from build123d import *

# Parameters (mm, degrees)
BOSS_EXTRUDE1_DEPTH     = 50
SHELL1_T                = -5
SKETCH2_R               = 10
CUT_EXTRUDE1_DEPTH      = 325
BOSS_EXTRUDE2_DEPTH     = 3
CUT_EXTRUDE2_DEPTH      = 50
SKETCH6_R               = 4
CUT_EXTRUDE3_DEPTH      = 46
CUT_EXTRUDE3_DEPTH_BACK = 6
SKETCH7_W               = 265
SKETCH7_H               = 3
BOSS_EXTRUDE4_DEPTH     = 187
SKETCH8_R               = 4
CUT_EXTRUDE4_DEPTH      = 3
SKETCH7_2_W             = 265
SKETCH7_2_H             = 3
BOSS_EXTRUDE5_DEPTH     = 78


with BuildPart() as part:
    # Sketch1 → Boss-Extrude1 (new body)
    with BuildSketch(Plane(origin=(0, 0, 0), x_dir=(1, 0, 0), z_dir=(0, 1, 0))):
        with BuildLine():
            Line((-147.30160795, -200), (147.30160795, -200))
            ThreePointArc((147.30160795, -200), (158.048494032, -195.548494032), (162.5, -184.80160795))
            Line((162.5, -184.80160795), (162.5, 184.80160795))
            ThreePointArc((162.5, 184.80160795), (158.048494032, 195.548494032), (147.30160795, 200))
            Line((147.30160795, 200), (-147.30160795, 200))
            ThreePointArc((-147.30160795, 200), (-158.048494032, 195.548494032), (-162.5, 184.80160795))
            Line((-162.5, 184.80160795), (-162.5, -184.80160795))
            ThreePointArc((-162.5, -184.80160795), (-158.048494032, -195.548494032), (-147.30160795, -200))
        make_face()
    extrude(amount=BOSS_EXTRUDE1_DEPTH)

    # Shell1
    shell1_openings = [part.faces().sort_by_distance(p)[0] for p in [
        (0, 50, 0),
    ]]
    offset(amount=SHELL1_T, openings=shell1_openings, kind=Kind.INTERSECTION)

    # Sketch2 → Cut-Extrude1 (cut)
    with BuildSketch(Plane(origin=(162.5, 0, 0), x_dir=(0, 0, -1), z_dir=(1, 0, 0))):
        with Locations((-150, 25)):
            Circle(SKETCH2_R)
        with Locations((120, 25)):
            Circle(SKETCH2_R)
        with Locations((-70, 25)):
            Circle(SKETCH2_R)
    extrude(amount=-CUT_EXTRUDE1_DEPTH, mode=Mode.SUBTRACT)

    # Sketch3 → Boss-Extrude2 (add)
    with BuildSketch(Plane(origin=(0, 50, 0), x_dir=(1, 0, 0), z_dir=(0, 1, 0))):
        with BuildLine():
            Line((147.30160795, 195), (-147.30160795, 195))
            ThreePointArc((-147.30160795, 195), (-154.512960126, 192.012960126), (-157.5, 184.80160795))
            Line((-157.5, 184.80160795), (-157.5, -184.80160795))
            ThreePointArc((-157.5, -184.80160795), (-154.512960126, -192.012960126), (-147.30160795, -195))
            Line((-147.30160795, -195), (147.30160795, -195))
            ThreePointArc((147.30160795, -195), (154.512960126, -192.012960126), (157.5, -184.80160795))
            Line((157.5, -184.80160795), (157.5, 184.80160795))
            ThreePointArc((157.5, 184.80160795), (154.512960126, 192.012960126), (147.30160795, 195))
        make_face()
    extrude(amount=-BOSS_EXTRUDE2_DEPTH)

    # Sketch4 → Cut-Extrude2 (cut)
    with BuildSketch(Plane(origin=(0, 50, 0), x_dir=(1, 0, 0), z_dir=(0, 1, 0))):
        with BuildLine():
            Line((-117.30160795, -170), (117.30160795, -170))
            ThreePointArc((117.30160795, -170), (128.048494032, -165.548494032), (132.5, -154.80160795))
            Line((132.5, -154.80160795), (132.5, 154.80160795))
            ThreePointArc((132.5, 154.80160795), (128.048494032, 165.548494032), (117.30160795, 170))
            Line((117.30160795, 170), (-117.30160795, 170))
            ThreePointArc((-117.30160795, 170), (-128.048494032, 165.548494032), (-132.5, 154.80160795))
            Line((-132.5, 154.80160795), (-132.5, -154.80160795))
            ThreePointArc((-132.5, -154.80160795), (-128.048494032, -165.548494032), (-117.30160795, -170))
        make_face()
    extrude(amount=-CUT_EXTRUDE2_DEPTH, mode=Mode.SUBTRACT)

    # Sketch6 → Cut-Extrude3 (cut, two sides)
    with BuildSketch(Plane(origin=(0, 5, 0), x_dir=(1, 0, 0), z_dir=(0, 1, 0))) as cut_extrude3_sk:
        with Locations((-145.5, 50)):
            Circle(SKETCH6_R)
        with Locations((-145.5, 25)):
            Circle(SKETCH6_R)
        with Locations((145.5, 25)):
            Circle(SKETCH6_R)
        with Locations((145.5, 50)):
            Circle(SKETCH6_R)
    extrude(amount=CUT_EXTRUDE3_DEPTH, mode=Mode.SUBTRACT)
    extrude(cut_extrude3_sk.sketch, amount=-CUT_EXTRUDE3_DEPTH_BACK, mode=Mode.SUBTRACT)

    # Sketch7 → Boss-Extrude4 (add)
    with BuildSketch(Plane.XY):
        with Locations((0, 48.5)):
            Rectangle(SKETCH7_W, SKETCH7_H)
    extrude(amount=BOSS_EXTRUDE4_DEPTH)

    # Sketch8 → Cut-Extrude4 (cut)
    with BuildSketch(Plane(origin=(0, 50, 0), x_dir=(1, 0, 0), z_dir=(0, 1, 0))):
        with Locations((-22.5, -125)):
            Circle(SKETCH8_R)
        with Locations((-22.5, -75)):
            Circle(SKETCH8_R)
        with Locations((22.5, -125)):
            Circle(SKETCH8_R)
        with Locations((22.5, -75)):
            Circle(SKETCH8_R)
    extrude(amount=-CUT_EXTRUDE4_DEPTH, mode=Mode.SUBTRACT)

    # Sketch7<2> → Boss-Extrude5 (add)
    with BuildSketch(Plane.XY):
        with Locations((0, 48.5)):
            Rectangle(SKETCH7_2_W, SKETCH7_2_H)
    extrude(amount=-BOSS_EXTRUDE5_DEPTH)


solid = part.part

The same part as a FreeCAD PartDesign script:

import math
import FreeCAD as App
import Part
import Sketcher

V = App.Vector
Q = App.Units.Quantity


def faces_at(feature, points):
    """Names of the faces that lie closest to the given points."""
    faces = feature.Shape.Faces
    near = lambda p: min(range(len(faces)), key=lambda i: faces[i].distToShape(Part.Vertex(*p))[0])
    return sorted({f"Face{near(p) + 1}" for p in points})

doc = App.newDocument("Part")
body = doc.addObject("PartDesign::Body", "Body")

# Sketch on XZ plane
sketch1 = doc.addObject("Sketcher::SketchObject", "Sketch")
body.addObject(sketch1)
sketch1.AttachmentSupport = (doc.XZ_Plane, [""])
sketch1.MapMode = "FlatFace"
sketch1.addGeometry(Part.LineSegment(V(-147.301608, 200, 0), V(147.301608, 200, 0)), False)
sketch1.addGeometry(Part.ArcOfCircle(Part.Circle(V(147.301608, 184.801608, 0), V(0, 0, 1), 15.198392), math.radians(0), math.radians(90)), False)
sketch1.addGeometry(Part.LineSegment(V(162.5, 184.801608, 0), V(162.5, -184.801608, 0)), False)
sketch1.addGeometry(Part.ArcOfCircle(Part.Circle(V(147.301608, -184.801608, 0), V(0, 0, 1), 15.198392), math.radians(-90), math.radians(0)), False)
sketch1.addGeometry(Part.LineSegment(V(147.301608, -200, 0), V(-147.301608, -200, 0)), False)
sketch1.addGeometry(Part.ArcOfCircle(Part.Circle(V(-147.301608, -184.801608, 0), V(0, 0, 1), 15.198392), math.radians(180), math.radians(270)), False)
sketch1.addGeometry(Part.LineSegment(V(-162.5, -184.801608, 0), V(-162.5, 184.801608, 0)), False)
sketch1.addGeometry(Part.ArcOfCircle(Part.Circle(V(-147.301608, 184.801608, 0), V(0, 0, 1), 15.198392), math.radians(90), math.radians(180)), False)
sketch1.addConstraint(Sketcher.Constraint("Tangent", 0, 2, 1, 2))
sketch1.addConstraint(Sketcher.Constraint("Tangent", 1, 1, 2, 1))
sketch1.addConstraint(Sketcher.Constraint("Tangent", 2, 2, 3, 2))
sketch1.addConstraint(Sketcher.Constraint("Tangent", 3, 1, 4, 1))
sketch1.addConstraint(Sketcher.Constraint("Tangent", 4, 2, 5, 2))
sketch1.addConstraint(Sketcher.Constraint("Tangent", 5, 1, 6, 1))
sketch1.addConstraint(Sketcher.Constraint("Tangent", 6, 2, 7, 2))
sketch1.addConstraint(Sketcher.Constraint("Tangent", 7, 1, 0, 1))
sketch1.addConstraint(Sketcher.Constraint("Horizontal", 0))
sketch1.addConstraint(Sketcher.Constraint("Vertical", 2))
sketch1.addConstraint(Sketcher.Constraint("Horizontal", 4))
sketch1.addConstraint(Sketcher.Constraint("Vertical", 6))
sketch1.addConstraint(Sketcher.Constraint("Equal", 1, 3))
sketch1.addConstraint(Sketcher.Constraint("Equal", 3, 5))
sketch1.addConstraint(Sketcher.Constraint("Equal", 5, 7))
sketch1.addConstraint(Sketcher.Constraint("Symmetric", 1, 3, 5, 3, -1, 1))
sketch1.addConstraint(Sketcher.Constraint("DistanceY", -1, 1, 0, 2, Q("200 mm")))
sketch1.addConstraint(Sketcher.Constraint("DistanceX", 5, 1, 2, 2, Q("325 mm")))
sketch1.addConstraint(Sketcher.Constraint("Radius", 1, Q("15.198392 mm")))
pad1 = doc.addObject("PartDesign::Pad", "Pad")
body.addObject(pad1)
pad1.Profile = sketch1
pad1.Length = 50
pad1.Reversed = True
doc.recompute()

thickness = doc.addObject("PartDesign::Thickness", "Thickness")
body.addObject(thickness)
thickness.Base = (pad1, faces_at(pad1, [(0, 50, 0)]))
thickness.Value = 5
thickness.Reversed = True
thickness.Join = "Intersection"

# Sketch on YZ plane
sketch2 = doc.addObject("Sketcher::SketchObject", "Sketch001")
body.addObject(sketch2)
sketch2.AttachmentSupport = (doc.YZ_Plane, [""])
sketch2.MapMode = "FlatFace"
sketch2.AttachmentOffset = App.Placement(V(0, 0, 162.5), App.Rotation())
sketch2.addGeometry(Part.Circle(V(25, 150, 0), V(0, 0, 1), 10), False)
sketch2.addGeometry(Part.Circle(V(25, -120, 0), V(0, 0, 1), 10), False)
sketch2.addGeometry(Part.Circle(V(25, 70, 0), V(0, 0, 1), 10), False)
sketch2.addConstraint(Sketcher.Constraint("Equal", 0, 1))
sketch2.addConstraint(Sketcher.Constraint("Equal", 1, 2))
sketch2.addConstraint(Sketcher.Constraint("Vertical", 0, 3, 1, 3))
sketch2.addConstraint(Sketcher.Constraint("Vertical", 1, 3, 2, 3))
sketch2.addConstraint(Sketcher.Constraint("Diameter", 0, Q("20 mm")))
sketch2.addConstraint(Sketcher.Constraint("DistanceX", -1, 1, 0, 3, Q("25 mm")))
sketch2.addConstraint(Sketcher.Constraint("DistanceY", -1, 1, 0, 3, Q("150 mm")))
sketch2.addConstraint(Sketcher.Constraint("DistanceY", 1, 3, -1, 1, Q("120 mm")))
sketch2.addConstraint(Sketcher.Constraint("DistanceY", -1, 1, 2, 3, Q("70 mm")))
pocket1 = doc.addObject("PartDesign::Pocket", "Pocket")
body.addObject(pocket1)
pocket1.Profile = sketch2
pocket1.Length = 325

# Sketch on XZ plane
sketch3 = doc.addObject("Sketcher::SketchObject", "Sketch002")
body.addObject(sketch3)
sketch3.AttachmentSupport = (doc.XZ_Plane, [""])
sketch3.MapMode = "FlatFace"
sketch3.AttachmentOffset = App.Placement(V(0, 0, -50), App.Rotation())
sketch3.addGeometry(Part.LineSegment(V(147.301608, -195, 0), V(-147.301608, -195, 0)), False)
sketch3.addGeometry(Part.ArcOfCircle(Part.Circle(V(-147.301608, -184.801608, 0), V(0, 0, 1), 10.198392), math.radians(180), math.radians(270)), False)
sketch3.addGeometry(Part.LineSegment(V(-157.5, -184.801608, 0), V(-157.5, 184.801608, 0)), False)
sketch3.addGeometry(Part.ArcOfCircle(Part.Circle(V(-147.301608, 184.801608, 0), V(0, 0, 1), 10.198392), math.radians(90), math.radians(180)), False)
sketch3.addGeometry(Part.LineSegment(V(-147.301608, 195, 0), V(147.301608, 195, 0)), False)
sketch3.addGeometry(Part.ArcOfCircle(Part.Circle(V(147.301608, 184.801608, 0), V(0, 0, 1), 10.198392), math.radians(0), math.radians(90)), False)
sketch3.addGeometry(Part.LineSegment(V(157.5, 184.801608, 0), V(157.5, -184.801608, 0)), False)
sketch3.addGeometry(Part.ArcOfCircle(Part.Circle(V(147.301608, -184.801608, 0), V(0, 0, 1), 10.198392), math.radians(-90), math.radians(0)), False)
sketch3.addConstraint(Sketcher.Constraint("Tangent", 0, 2, 1, 2))
sketch3.addConstraint(Sketcher.Constraint("Tangent", 1, 1, 2, 1))
sketch3.addConstraint(Sketcher.Constraint("Tangent", 2, 2, 3, 2))
sketch3.addConstraint(Sketcher.Constraint("Tangent", 3, 1, 4, 1))
sketch3.addConstraint(Sketcher.Constraint("Tangent", 4, 2, 5, 2))
sketch3.addConstraint(Sketcher.Constraint("Tangent", 5, 1, 6, 1))
sketch3.addConstraint(Sketcher.Constraint("Tangent", 6, 2, 7, 2))
sketch3.addConstraint(Sketcher.Constraint("Tangent", 7, 1, 0, 1))
sketch3.addConstraint(Sketcher.Constraint("Horizontal", 0))
sketch3.addConstraint(Sketcher.Constraint("Vertical", 2))
sketch3.addConstraint(Sketcher.Constraint("Horizontal", 4))
sketch3.addConstraint(Sketcher.Constraint("Vertical", 6))
sketch3.addConstraint(Sketcher.Constraint("Equal", 1, 3))
sketch3.addConstraint(Sketcher.Constraint("Equal", 3, 5))
sketch3.addConstraint(Sketcher.Constraint("Equal", 5, 7))
sketch3.addConstraint(Sketcher.Constraint("Symmetric", 1, 3, 5, 3, -1, 1))
sketch3.addConstraint(Sketcher.Constraint("DistanceY", 0, 2, -1, 1, Q("195 mm")))
sketch3.addConstraint(Sketcher.Constraint("DistanceX", 2, 2, 5, 1, Q("315 mm")))
sketch3.addConstraint(Sketcher.Constraint("Radius", 1, Q("10.198392 mm")))
pad2 = doc.addObject("PartDesign::Pad", "Pad001")
body.addObject(pad2)
pad2.Profile = sketch3
pad2.Length = 3

# Sketch on XZ plane
sketch4 = doc.addObject("Sketcher::SketchObject", "Sketch003")
body.addObject(sketch4)
sketch4.AttachmentSupport = (doc.XZ_Plane, [""])
sketch4.MapMode = "FlatFace"
sketch4.AttachmentOffset = App.Placement(V(0, 0, -50), App.Rotation())
sketch4.addGeometry(Part.LineSegment(V(-117.301608, 170, 0), V(117.301608, 170, 0)), False)
sketch4.addGeometry(Part.ArcOfCircle(Part.Circle(V(117.301608, 154.801608, 0), V(0, 0, 1), 15.198392), math.radians(0), math.radians(90)), False)
sketch4.addGeometry(Part.LineSegment(V(132.5, 154.801608, 0), V(132.5, -154.801608, 0)), False)
sketch4.addGeometry(Part.ArcOfCircle(Part.Circle(V(117.301608, -154.801608, 0), V(0, 0, 1), 15.198392), math.radians(-90), math.radians(0)), False)
sketch4.addGeometry(Part.LineSegment(V(117.301608, -170, 0), V(-117.301608, -170, 0)), False)
sketch4.addGeometry(Part.ArcOfCircle(Part.Circle(V(-117.301608, -154.801608, 0), V(0, 0, 1), 15.198392), math.radians(180), math.radians(270)), False)
sketch4.addGeometry(Part.LineSegment(V(-132.5, -154.801608, 0), V(-132.5, 154.801608, 0)), False)
sketch4.addGeometry(Part.ArcOfCircle(Part.Circle(V(-117.301608, 154.801608, 0), V(0, 0, 1), 15.198392), math.radians(90), math.radians(180)), False)
sketch4.addConstraint(Sketcher.Constraint("Tangent", 0, 2, 1, 2))
sketch4.addConstraint(Sketcher.Constraint("Tangent", 1, 1, 2, 1))
sketch4.addConstraint(Sketcher.Constraint("Tangent", 2, 2, 3, 2))
sketch4.addConstraint(Sketcher.Constraint("Tangent", 3, 1, 4, 1))
sketch4.addConstraint(Sketcher.Constraint("Tangent", 4, 2, 5, 2))
sketch4.addConstraint(Sketcher.Constraint("Tangent", 5, 1, 6, 1))
sketch4.addConstraint(Sketcher.Constraint("Tangent", 6, 2, 7, 2))
sketch4.addConstraint(Sketcher.Constraint("Tangent", 7, 1, 0, 1))
sketch4.addConstraint(Sketcher.Constraint("Horizontal", 0))
sketch4.addConstraint(Sketcher.Constraint("Vertical", 2))
sketch4.addConstraint(Sketcher.Constraint("Horizontal", 4))
sketch4.addConstraint(Sketcher.Constraint("Vertical", 6))
sketch4.addConstraint(Sketcher.Constraint("Equal", 1, 3))
sketch4.addConstraint(Sketcher.Constraint("Equal", 3, 5))
sketch4.addConstraint(Sketcher.Constraint("Equal", 5, 7))
sketch4.addConstraint(Sketcher.Constraint("Symmetric", 1, 3, 5, 3, -1, 1))
sketch4.addConstraint(Sketcher.Constraint("DistanceY", -1, 1, 0, 2, Q("170 mm")))
sketch4.addConstraint(Sketcher.Constraint("DistanceX", 5, 1, 2, 2, Q("265 mm")))
sketch4.addConstraint(Sketcher.Constraint("Radius", 1, Q("15.198392 mm")))
pocket2 = doc.addObject("PartDesign::Pocket", "Pocket001")
body.addObject(pocket2)
pocket2.Profile = sketch4
pocket2.Length = 50
pocket2.Reversed = True

# Sketch on XZ plane
sketch5 = doc.addObject("Sketcher::SketchObject", "Sketch004")
body.addObject(sketch5)
sketch5.AttachmentSupport = (doc.XZ_Plane, [""])
sketch5.MapMode = "FlatFace"
sketch5.AttachmentOffset = App.Placement(V(0, 0, -5), App.Rotation())
sketch5.addGeometry(Part.Circle(V(-145.5, -50, 0), V(0, 0, 1), 4), False)
sketch5.addGeometry(Part.Circle(V(-145.5, -25, 0), V(0, 0, 1), 4), False)
sketch5.addGeometry(Part.Circle(V(145.5, -25, 0), V(0, 0, 1), 4), False)
sketch5.addGeometry(Part.Circle(V(145.5, -50, 0), V(0, 0, 1), 4), False)
sketch5.addConstraint(Sketcher.Constraint("Equal", 0, 1))
sketch5.addConstraint(Sketcher.Constraint("Equal", 1, 2))
sketch5.addConstraint(Sketcher.Constraint("Equal", 2, 3))
sketch5.addConstraint(Sketcher.Constraint("Symmetric", 1, 3, 2, 3, -2))
sketch5.addConstraint(Sketcher.Constraint("Symmetric", 0, 3, 3, 3, -2))
sketch5.addConstraint(Sketcher.Constraint("Vertical", 0, 3, 1, 3))
sketch5.addConstraint(Sketcher.Constraint("Diameter", 0, Q("8 mm")))
sketch5.addConstraint(Sketcher.Constraint("DistanceY", 0, 3, -1, 1, Q("50 mm")))
sketch5.addConstraint(Sketcher.Constraint("DistanceY", 1, 3, -1, 1, Q("25 mm")))
sketch5.addConstraint(Sketcher.Constraint("DistanceX", 1, 3, 2, 3, Q("291 mm")))
pocket3 = doc.addObject("PartDesign::Pocket", "Pocket002")
body.addObject(pocket3)
pocket3.Profile = sketch5
pocket3.Type = "ThroughAll"
pocket3.Midplane = True

# Sketch on XY plane
sketch6 = doc.addObject("Sketcher::SketchObject", "Sketch005")
body.addObject(sketch6)
sketch6.AttachmentSupport = (doc.XY_Plane, [""])
sketch6.MapMode = "FlatFace"
sketch6.addGeometry(Part.LineSegment(V(-132.5, 50, 0), V(-132.5, 47, 0)), False)
sketch6.addGeometry(Part.LineSegment(V(-132.5, 47, 0), V(132.5, 47, 0)), False)
sketch6.addGeometry(Part.LineSegment(V(132.5, 47, 0), V(132.5, 50, 0)), False)
sketch6.addGeometry(Part.LineSegment(V(132.5, 50, 0), V(-132.5, 50, 0)), False)
sketch6.addConstraint(Sketcher.Constraint("Coincident", 0, 2, 1, 1))
sketch6.addConstraint(Sketcher.Constraint("Coincident", 1, 2, 2, 1))
sketch6.addConstraint(Sketcher.Constraint("Coincident", 2, 2, 3, 1))
sketch6.addConstraint(Sketcher.Constraint("Coincident", 3, 2, 0, 1))
sketch6.addConstraint(Sketcher.Constraint("Vertical", 0))
sketch6.addConstraint(Sketcher.Constraint("Horizontal", 1))
sketch6.addConstraint(Sketcher.Constraint("Vertical", 2))
sketch6.addConstraint(Sketcher.Constraint("Horizontal", 3))
sketch6.addConstraint(Sketcher.Constraint("DistanceX", 1, 1, 1, 2, Q("265 mm")))
sketch6.addConstraint(Sketcher.Constraint("DistanceY", 0, 2, 0, 1, Q("3 mm")))
sketch6.addConstraint(Sketcher.Constraint("DistanceY", -1, 1, 0, 2, Q("47 mm")))
sketch6.addConstraint(Sketcher.Constraint("DistanceX", 0, 2, -1, 1, Q("132.5 mm")))
pad3 = doc.addObject("PartDesign::Pad", "Pad002")
body.addObject(pad3)
pad3.Profile = sketch6
pad3.Length = 187

# Sketch on XZ plane
sketch7 = doc.addObject("Sketcher::SketchObject", "Sketch006")
body.addObject(sketch7)
sketch7.AttachmentSupport = (doc.XZ_Plane, [""])
sketch7.MapMode = "FlatFace"
sketch7.AttachmentOffset = App.Placement(V(0, 0, -50), App.Rotation())
sketch7.addGeometry(Part.Circle(V(-22.5, 125, 0), V(0, 0, 1), 4), False)
sketch7.addGeometry(Part.Circle(V(-22.5, 75, 0), V(0, 0, 1), 4), False)
sketch7.addGeometry(Part.Circle(V(22.5, 125, 0), V(0, 0, 1), 4), False)
sketch7.addGeometry(Part.Circle(V(22.5, 75, 0), V(0, 0, 1), 4), False)
sketch7.addConstraint(Sketcher.Constraint("Equal", 0, 1))
sketch7.addConstraint(Sketcher.Constraint("Equal", 1, 2))
sketch7.addConstraint(Sketcher.Constraint("Equal", 2, 3))
sketch7.addConstraint(Sketcher.Constraint("Symmetric", 0, 3, 2, 3, -2))
sketch7.addConstraint(Sketcher.Constraint("Symmetric", 1, 3, 3, 3, -2))
sketch7.addConstraint(Sketcher.Constraint("Vertical", 0, 3, 1, 3))
sketch7.addConstraint(Sketcher.Constraint("Diameter", 0, Q("8 mm")))
sketch7.addConstraint(Sketcher.Constraint("DistanceY", -1, 1, 0, 3, Q("125 mm")))
sketch7.addConstraint(Sketcher.Constraint("DistanceY", -1, 1, 1, 3, Q("75 mm")))
sketch7.addConstraint(Sketcher.Constraint("DistanceX", 0, 3, 2, 3, Q("45 mm")))
pocket4 = doc.addObject("PartDesign::Pocket", "Pocket003")
body.addObject(pocket4)
pocket4.Profile = sketch7
pocket4.Length = 3
pocket4.Reversed = True

# Sketch on XY plane
sketch8 = doc.addObject("Sketcher::SketchObject", "Sketch007")
body.addObject(sketch8)
sketch8.AttachmentSupport = (doc.XY_Plane, [""])
sketch8.MapMode = "FlatFace"
sketch8.addGeometry(Part.LineSegment(V(-132.5, 50, 0), V(-132.5, 47, 0)), False)
sketch8.addGeometry(Part.LineSegment(V(-132.5, 47, 0), V(132.5, 47, 0)), False)
sketch8.addGeometry(Part.LineSegment(V(132.5, 47, 0), V(132.5, 50, 0)), False)
sketch8.addGeometry(Part.LineSegment(V(132.5, 50, 0), V(-132.5, 50, 0)), False)
sketch8.addConstraint(Sketcher.Constraint("Coincident", 0, 2, 1, 1))
sketch8.addConstraint(Sketcher.Constraint("Coincident", 1, 2, 2, 1))
sketch8.addConstraint(Sketcher.Constraint("Coincident", 2, 2, 3, 1))
sketch8.addConstraint(Sketcher.Constraint("Coincident", 3, 2, 0, 1))
sketch8.addConstraint(Sketcher.Constraint("Vertical", 0))
sketch8.addConstraint(Sketcher.Constraint("Horizontal", 1))
sketch8.addConstraint(Sketcher.Constraint("Vertical", 2))
sketch8.addConstraint(Sketcher.Constraint("Horizontal", 3))
sketch8.addConstraint(Sketcher.Constraint("DistanceX", 1, 1, 1, 2, Q("265 mm")))
sketch8.addConstraint(Sketcher.Constraint("DistanceY", 0, 2, 0, 1, Q("3 mm")))
sketch8.addConstraint(Sketcher.Constraint("DistanceY", -1, 1, 0, 2, Q("47 mm")))
sketch8.addConstraint(Sketcher.Constraint("DistanceX", 0, 2, -1, 1, Q("132.5 mm")))
pad4 = doc.addObject("PartDesign::Pad", "Pad003")
body.addObject(pad4)
pad4.Profile = sketch8
pad4.Length = 78
pad4.Reversed = True

doc.recompute()
